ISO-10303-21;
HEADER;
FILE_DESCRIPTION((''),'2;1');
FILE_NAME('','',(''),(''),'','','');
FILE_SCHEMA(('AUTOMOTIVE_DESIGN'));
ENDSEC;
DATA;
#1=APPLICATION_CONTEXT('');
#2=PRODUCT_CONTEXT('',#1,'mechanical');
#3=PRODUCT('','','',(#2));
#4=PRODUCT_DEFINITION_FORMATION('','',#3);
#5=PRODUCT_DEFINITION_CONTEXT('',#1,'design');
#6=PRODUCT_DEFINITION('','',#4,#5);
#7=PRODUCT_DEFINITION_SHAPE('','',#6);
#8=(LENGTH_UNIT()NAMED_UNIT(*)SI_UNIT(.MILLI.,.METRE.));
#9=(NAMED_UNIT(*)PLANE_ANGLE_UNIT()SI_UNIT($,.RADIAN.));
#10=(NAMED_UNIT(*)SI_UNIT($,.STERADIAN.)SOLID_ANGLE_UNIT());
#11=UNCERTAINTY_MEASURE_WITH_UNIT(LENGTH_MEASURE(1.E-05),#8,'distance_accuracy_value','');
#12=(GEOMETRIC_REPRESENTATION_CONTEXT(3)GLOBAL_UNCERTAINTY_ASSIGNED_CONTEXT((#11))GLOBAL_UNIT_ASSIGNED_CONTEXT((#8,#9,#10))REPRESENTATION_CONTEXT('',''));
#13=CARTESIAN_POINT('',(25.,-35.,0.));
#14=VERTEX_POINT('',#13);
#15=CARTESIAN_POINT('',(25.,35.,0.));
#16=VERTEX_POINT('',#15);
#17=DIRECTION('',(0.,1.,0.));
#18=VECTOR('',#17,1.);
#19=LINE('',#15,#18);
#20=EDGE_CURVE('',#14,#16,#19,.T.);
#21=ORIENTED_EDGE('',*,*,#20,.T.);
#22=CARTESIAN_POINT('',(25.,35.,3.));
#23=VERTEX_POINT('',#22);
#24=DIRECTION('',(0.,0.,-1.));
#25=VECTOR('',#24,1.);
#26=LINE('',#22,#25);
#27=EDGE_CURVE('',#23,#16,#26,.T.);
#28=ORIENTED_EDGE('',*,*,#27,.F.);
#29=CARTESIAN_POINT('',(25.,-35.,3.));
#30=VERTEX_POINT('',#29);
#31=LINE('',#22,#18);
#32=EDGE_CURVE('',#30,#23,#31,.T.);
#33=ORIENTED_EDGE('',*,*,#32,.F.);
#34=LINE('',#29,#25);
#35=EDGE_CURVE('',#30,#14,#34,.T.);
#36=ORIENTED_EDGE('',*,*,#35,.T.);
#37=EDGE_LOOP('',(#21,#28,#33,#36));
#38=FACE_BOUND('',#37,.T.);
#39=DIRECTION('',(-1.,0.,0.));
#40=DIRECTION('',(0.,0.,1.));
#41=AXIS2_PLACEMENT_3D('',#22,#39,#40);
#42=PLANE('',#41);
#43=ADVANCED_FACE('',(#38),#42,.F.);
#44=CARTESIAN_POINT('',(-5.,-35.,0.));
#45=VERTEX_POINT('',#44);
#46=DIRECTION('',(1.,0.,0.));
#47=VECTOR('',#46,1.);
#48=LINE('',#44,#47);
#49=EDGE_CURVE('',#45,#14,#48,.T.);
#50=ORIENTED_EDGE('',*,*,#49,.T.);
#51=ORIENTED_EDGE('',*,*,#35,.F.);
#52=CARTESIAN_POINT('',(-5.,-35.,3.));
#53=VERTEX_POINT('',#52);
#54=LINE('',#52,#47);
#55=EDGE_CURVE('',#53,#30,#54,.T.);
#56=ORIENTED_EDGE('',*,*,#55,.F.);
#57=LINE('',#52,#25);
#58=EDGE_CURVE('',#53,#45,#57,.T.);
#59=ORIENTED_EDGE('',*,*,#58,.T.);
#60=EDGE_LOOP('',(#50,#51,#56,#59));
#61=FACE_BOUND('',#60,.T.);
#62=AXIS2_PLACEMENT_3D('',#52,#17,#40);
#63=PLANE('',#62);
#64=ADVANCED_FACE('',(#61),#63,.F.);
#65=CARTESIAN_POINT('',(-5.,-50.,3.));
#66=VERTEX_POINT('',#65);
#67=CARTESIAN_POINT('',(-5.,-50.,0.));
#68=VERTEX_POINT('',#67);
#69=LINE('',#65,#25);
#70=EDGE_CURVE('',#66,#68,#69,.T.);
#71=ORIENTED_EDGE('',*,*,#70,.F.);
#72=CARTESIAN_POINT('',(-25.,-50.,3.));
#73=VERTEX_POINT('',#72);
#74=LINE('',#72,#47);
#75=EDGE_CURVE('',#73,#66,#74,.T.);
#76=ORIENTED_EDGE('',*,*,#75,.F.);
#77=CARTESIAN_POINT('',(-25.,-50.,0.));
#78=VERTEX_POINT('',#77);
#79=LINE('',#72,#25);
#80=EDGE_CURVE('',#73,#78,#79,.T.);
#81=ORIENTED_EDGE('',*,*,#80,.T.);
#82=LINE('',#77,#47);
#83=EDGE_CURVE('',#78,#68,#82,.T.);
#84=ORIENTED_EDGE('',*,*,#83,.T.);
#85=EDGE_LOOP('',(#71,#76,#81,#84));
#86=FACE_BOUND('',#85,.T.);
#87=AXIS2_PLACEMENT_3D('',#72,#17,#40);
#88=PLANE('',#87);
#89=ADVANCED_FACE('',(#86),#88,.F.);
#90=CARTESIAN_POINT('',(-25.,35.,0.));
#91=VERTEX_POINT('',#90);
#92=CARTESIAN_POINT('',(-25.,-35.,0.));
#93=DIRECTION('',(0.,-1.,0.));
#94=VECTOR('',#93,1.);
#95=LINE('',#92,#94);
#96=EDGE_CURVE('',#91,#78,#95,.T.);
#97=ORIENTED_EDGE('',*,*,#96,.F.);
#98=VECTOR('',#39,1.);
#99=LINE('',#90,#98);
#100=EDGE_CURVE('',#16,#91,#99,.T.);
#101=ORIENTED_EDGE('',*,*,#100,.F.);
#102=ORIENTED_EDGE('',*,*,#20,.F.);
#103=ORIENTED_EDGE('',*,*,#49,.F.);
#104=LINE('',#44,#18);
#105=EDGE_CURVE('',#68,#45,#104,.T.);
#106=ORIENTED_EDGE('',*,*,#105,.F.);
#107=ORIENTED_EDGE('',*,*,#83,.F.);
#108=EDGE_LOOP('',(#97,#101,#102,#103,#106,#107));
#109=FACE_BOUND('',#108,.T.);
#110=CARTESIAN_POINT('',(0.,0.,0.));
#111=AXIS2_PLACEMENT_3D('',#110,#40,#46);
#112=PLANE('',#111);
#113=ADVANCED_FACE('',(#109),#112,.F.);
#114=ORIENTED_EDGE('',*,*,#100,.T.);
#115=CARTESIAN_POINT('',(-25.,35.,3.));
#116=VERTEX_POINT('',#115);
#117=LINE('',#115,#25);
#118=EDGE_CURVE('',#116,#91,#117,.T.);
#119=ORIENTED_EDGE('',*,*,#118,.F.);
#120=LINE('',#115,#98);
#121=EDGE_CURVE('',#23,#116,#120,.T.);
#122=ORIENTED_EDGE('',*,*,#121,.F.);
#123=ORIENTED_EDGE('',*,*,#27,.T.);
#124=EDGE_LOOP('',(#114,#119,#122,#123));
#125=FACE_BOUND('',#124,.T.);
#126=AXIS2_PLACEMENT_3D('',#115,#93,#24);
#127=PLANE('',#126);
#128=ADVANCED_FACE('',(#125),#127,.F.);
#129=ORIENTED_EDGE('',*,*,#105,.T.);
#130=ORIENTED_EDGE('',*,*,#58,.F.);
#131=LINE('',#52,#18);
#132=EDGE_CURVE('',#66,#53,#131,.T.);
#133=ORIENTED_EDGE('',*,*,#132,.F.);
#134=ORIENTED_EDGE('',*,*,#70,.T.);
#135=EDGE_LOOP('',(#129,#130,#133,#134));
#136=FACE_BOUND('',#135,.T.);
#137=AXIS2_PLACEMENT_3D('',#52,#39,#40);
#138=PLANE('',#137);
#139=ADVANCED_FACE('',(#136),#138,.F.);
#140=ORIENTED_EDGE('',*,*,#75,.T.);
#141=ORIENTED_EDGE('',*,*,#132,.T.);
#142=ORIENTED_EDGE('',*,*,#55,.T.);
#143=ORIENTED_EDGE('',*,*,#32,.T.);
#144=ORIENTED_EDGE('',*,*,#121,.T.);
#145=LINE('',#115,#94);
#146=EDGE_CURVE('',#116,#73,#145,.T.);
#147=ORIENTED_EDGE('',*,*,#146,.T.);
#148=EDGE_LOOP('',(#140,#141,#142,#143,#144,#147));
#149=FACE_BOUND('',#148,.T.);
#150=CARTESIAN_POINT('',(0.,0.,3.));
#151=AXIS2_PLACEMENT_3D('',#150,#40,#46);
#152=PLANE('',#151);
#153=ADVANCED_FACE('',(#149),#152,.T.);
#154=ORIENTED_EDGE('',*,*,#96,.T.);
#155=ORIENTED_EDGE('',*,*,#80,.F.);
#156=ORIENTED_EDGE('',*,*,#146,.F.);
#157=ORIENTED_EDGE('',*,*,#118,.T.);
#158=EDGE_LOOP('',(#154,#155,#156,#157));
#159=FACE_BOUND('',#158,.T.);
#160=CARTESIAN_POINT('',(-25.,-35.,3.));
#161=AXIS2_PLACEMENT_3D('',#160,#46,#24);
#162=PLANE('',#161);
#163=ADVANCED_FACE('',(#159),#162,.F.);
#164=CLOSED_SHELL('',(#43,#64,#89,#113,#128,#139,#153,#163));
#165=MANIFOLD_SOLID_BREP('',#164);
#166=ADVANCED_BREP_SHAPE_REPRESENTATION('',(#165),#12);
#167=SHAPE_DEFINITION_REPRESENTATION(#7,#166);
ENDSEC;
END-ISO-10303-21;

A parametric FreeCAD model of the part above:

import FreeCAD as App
import Part
import Sketcher

V = App.Vector


def add_polygon(sketch, points):
    """Adds a closed chain of lines whose ends are joined by coincident constraints."""
    first, n = sketch.GeometryCount, len(points)
    for a, b in zip(points, points[1:] + points[:1]):
        sketch.addGeometry(Part.LineSegment(App.Vector(*a, 0), App.Vector(*b, 0)), False)
    for i in range(n):
        sketch.addConstraint(Sketcher.Constraint("Coincident", first + i, 2, first + (i + 1) % n, 1))

doc = App.newDocument("Part")
body = doc.addObject("PartDesign::Body", "Body")

# Sketch on XY plane
sketch1 = body.newObject("Sketcher::SketchObject", "Sketch")
sketch1.AttachmentSupport = (doc.getObject("XY_Plane"), [""])
sketch1.MapMode = "FlatFace"
add_polygon(sketch1, [(25, 35), (-25, 35), (-25, -50), (-5, -50), (-5, -35), (25, -35)])  # lines 0-5
sketch1.addConstraint(Sketcher.Constraint("Horizontal", 0))
sketch1.addConstraint(Sketcher.Constraint("Vertical", 1))
sketch1.addConstraint(Sketcher.Constraint("Horizontal", 2))
sketch1.addConstraint(Sketcher.Constraint("Vertical", 3))
sketch1.addConstraint(Sketcher.Constraint("Horizontal", 4))
sketch1.addConstraint(Sketcher.Constraint("Vertical", 5))
sketch1.addConstraint(Sketcher.Constraint("Symmetric", 0, 2, 4, 2, -1, 1))
sketch1.addConstraint(Sketcher.Constraint("DistanceX", 0, 2, 0, 1, 50.0))
sketch1.addConstraint(Sketcher.Constraint("DistanceX", 2, 1, 2, 2, 20.0))
sketch1.addConstraint(Sketcher.Constraint("DistanceY", 1, 2, 1, 1, 85.0))
sketch1.addConstraint(Sketcher.Constraint("DistanceY", 3, 1, 3, 2, 15.0))
pad1 = body.newObject("PartDesign::Pad", "Pad")
pad1.Profile = sketch1
pad1.Length = 3

doc.recompute()
